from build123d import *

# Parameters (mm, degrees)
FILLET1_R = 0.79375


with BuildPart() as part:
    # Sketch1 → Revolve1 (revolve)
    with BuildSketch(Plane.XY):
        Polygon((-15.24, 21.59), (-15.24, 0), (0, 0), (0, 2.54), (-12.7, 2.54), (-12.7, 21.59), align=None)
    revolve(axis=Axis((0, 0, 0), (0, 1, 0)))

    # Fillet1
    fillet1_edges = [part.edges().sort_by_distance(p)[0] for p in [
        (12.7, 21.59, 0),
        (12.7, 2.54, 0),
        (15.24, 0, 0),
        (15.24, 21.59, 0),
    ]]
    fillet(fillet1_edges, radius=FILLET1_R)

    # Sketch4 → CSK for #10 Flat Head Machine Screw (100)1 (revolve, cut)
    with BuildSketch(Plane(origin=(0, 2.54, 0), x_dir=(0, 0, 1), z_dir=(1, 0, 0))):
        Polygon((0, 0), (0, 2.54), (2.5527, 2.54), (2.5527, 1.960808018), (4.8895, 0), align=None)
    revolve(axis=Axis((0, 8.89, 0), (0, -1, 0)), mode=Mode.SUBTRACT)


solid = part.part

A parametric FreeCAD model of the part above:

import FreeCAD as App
import Part
import Sketcher
Q = App.Units.Quantity


def edges_at(feature, points):
    """Names of the edges that pass closest to the given points."""
    edges = feature.Shape.Edges
    near = lambda p: min(range(len(edges)), key=lambda i: edges[i].distToShape(Part.Vertex(*p))[0])
    return sorted({f"Edge{near(p) + 1}" for p in points})


def add_polygon(sketch, points):
    """Adds a closed chain of lines whose ends are joined by coincident constraints."""
    first, n = sketch.GeometryCount, len(points)
    for a, b in zip(points, points[1:] + points[:1]):
        sketch.addGeometry(Part.LineSegment(App.Vector(*a, 0), App.Vector(*b, 0)), False)
    for i in range(n):
        sketch.addConstraint(Sketcher.Constraint("Coincident", first + i, 2, first + (i + 1) % n, 1))

doc = App.newDocument("Part")
body = doc.addObject("PartDesign::Body", "Body")

sketch1 = body.newObject("Sketcher::SketchObject", "Sketch")
sketch1.AttachmentSupport = (doc.getObject("XY_Plane"), [""])
sketch1.MapMode = "FlatFace"
add_polygon(sketch1, [(-15.2, 21.6), (-15.2, 0), (0, 0), (0, 2.5), (-12.7, 2.5), (-12.7, 21.6)])
sketch1.addConstraint(Sketcher.Constraint("Vertical", 0))
sketch1.addConstraint(Sketcher.Constraint("Horizontal", 1))
sketch1.addConstraint(Sketcher.Constraint("Vertical", 2))
sketch1.addConstraint(Sketcher.Constraint("Horizontal", 3))
sketch1.addConstraint(Sketcher.Constraint("Vertical", 4))
sketch1.addConstraint(Sketcher.Constraint("Horizontal", 5))
sketch1.addConstraint(Sketcher.Constraint("Coincident", 1, 2, -1, 1))
sketch1.addConstraint(Sketcher.Constraint("Equal", 5, 2))
sketch1.addConstraint(Sketcher.Constraint("DistanceX", 1, 1, 1, 2, Q("0.6 in")))
sketch1.addConstraint(Sketcher.Constraint("DistanceX", 3, 2, 3, 1, Q("0.5 in")))
sketch1.addConstraint(Sketcher.Constraint("DistanceY", 0, 2, 0, 1, Q("0.85 in")))
revolution = body.newObject("PartDesign::Revolution", "Revolution")
revolution.Profile = sketch1
revolution.ReferenceAxis = (sketch1, ["V_Axis"])
revolution.Angle = 360
doc.recompute()

fillet = body.newObject("PartDesign::Fillet", "Fillet")
fillet.Base = (revolution, edges_at(revolution, [
    (12.7, 21.59, 0),
    (12.7, 2.54, 0),
    (15.24, 0, 0),
    (15.24, 21.59, 0),
]))
fillet.Radius = Q("0.03125 in")

sketch2 = body.newObject("Sketcher::SketchObject", "Sketch001")
sketch2.AttachmentSupport = (doc.getObject("YZ_Plane"), [""])
sketch2.MapMode = "FlatFace"
add_polygon(sketch2, [(0, 0), (2.5, 0), (2.5, 4.9), (0.6, 2.6), (0, 2.6)])
sketch2.addConstraint(Sketcher.Constraint("Horizontal", 0))
sketch2.addConstraint(Sketcher.Constraint("Vertical", 1))
sketch2.addConstraint(Sketcher.Constraint("Horizontal", 3))
sketch2.addConstraint(Sketcher.Constraint("Vertical", 4))
sketch2.addConstraint(Sketcher.Constraint("Coincident", 4, 2, -1, 1))
sketch2.addConstraint(Sketcher.Constraint("DistanceX", 0, 1, 0, 2, Q("0.1 in")))
sketch2.addConstraint(Sketcher.Constraint("Angle", 2, Q("-130 deg")))
sketch2.addConstraint(Sketcher.Constraint("DistanceY", 1, 1, 1, 2, Q("0.1925 in")))
sketch2.addConstraint(Sketcher.Constraint("DistanceY", 4, 2, 4, 1, Q("0.1005 in")))
groove = body.newObject("PartDesign::Groove", "Groove")
groove.Profile = sketch2
groove.ReferenceAxis = (sketch2, ["H_Axis"])
groove.Angle = 360

doc.recompute()
